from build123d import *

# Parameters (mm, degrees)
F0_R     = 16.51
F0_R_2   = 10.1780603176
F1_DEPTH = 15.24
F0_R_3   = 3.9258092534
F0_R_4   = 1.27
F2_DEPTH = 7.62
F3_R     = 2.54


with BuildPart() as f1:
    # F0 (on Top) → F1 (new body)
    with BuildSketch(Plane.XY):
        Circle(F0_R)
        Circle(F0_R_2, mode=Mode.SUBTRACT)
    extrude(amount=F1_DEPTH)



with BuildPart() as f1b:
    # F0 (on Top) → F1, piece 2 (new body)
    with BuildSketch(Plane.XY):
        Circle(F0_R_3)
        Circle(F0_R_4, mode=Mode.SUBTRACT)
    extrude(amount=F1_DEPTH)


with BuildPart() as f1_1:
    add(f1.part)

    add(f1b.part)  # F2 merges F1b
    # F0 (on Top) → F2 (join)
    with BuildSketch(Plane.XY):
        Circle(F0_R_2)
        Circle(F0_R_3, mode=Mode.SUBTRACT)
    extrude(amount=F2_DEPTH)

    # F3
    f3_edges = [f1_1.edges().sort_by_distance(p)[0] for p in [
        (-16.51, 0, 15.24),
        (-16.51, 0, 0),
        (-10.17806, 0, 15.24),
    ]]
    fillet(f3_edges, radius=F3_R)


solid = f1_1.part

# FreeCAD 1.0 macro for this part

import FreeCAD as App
import Part
import Sketcher

V = App.Vector
Q = App.Units.Quantity


def edges_at(feature, points):
    """Names of the edges that pass closest to the given points."""
    edges = feature.Shape.Edges
    near = lambda p: min(range(len(edges)), key=lambda i: edges[i].distToShape(Part.Vertex(*p))[0])
    return sorted({f"Edge{near(p) + 1}" for p in points})

doc = App.newDocument("Part")
params = doc.addObject("Spreadsheet::Sheet", "Params")
for row, (alias, value) in enumerate([
    ("sketch1_diameter", "1.3 in"),
    ("pad1_length", "0.6 in"),
    ("sketch2_diameter", "0.1 in"),
    ("pad2_length", "0.6 in"),
    ("pad3_length", "0.3 in"),
    ("fillet_radius", "0.1 in"),
], start=1):
    params.set(f"A{row}", alias)
    params.set(f"B{row}", "=" + value)
    params.setAlias(f"B{row}", alias)

body = doc.addObject("PartDesign::Body", "Body")

sketch1 = body.newObject("Sketcher::SketchObject", "Sketch")
sketch1.AttachmentSupport = (doc.getObject("XY_Plane"), [""])
sketch1.MapMode = "FlatFace"
sketch1.addGeometry([
    Part.Circle(V(0, 0, 0), V(0, 0, 1), 17),
    Part.Circle(V(0, 0, 0), V(0, 0, 1), 10),
], False)
sketch1.addConstraint([
    Sketcher.Constraint("Coincident", 0, 3, -1, 1),
    Sketcher.Constraint("Coincident", 1, 3, -1, 1),
    Sketcher.Constraint("Diameter", 0, Q("1.3 in")),
    Sketcher.Constraint("Diameter", 1, Q("20.356121 mm")),
])
sketch1.setExpression("Constraints[2]", "Params.sketch1_diameter")
pad1 = body.newObject("PartDesign::Pad", "Pad")
pad1.Profile = sketch1
pad1.setExpression("Length", "Params.pad1_length")
body2 = doc.addObject("PartDesign::Body", "Body001")

sketch2 = body2.newObject("Sketcher::SketchObject", "Sketch001")
sketch2.AttachmentSupport = (doc.getObject("XY_Plane001"), [""])
sketch2.MapMode = "FlatFace"
sketch2.addGeometry([
    Part.Circle(V(0, 0, 0), V(0, 0, 1), 3.9),
    Part.Circle(V(0, 0, 0), V(0, 0, 1), 1.3),
], False)
sketch2.addConstraint([
    Sketcher.Constraint("Coincident", 0, 3, -1, 1),
    Sketcher.Constraint("Coincident", 1, 3, -1, 1),
    Sketcher.Constraint("Diameter", 1, Q("0.1 in")),
    Sketcher.Constraint("Diameter", 0, Q("7.851619 mm")),
])
sketch2.setExpression("Constraints[2]", "Params.sketch2_diameter")
pad2 = body2.newObject("PartDesign::Pad", "Pad001")
pad2.Profile = sketch2
pad2.setExpression("Length", "Params.pad2_length")
body.AllowCompound = True
doc.recompute()

boolean = body.newObject("PartDesign::Boolean", "Boolean")
boolean.Type = "Fuse"
boolean.addObjects([body2])

sketch3 = body.newObject("Sketcher::SketchObject", "Sketch002")
sketch3.AttachmentSupport = (doc.getObject("XY_Plane"), [""])
sketch3.MapMode = "FlatFace"
sketch3.addGeometry([
    Part.Circle(V(0, 0, 0), V(0, 0, 1), 10.2),
    Part.Circle(V(0, 0, 0), V(0, 0, 1), 3.9),
], False)
sketch3.addConstraint([
    Sketcher.Constraint("Coincident", 0, 3, -1, 1),
    Sketcher.Constraint("Coincident", 1, 3, -1, 1),
    Sketcher.Constraint("Diameter", 0, Q("20.356121 mm")),
    Sketcher.Constraint("Diameter", 1, Q("7.851619 mm")),
])
pad3 = body.newObject("PartDesign::Pad", "Pad002")
pad3.Profile = sketch3
pad3.setExpression("Length", "Params.pad3_length")
doc.recompute()

fillet = body.newObject("PartDesign::Fillet", "Fillet")
fillet.Base = (pad3, edges_at(pad3, [(-16.51, 0, 15.24), (-16.51, 0, 0), (-10.178, 0, 15.24)]))
fillet.setExpression("Radius", "Params.fillet_radius")

doc.recompute()
